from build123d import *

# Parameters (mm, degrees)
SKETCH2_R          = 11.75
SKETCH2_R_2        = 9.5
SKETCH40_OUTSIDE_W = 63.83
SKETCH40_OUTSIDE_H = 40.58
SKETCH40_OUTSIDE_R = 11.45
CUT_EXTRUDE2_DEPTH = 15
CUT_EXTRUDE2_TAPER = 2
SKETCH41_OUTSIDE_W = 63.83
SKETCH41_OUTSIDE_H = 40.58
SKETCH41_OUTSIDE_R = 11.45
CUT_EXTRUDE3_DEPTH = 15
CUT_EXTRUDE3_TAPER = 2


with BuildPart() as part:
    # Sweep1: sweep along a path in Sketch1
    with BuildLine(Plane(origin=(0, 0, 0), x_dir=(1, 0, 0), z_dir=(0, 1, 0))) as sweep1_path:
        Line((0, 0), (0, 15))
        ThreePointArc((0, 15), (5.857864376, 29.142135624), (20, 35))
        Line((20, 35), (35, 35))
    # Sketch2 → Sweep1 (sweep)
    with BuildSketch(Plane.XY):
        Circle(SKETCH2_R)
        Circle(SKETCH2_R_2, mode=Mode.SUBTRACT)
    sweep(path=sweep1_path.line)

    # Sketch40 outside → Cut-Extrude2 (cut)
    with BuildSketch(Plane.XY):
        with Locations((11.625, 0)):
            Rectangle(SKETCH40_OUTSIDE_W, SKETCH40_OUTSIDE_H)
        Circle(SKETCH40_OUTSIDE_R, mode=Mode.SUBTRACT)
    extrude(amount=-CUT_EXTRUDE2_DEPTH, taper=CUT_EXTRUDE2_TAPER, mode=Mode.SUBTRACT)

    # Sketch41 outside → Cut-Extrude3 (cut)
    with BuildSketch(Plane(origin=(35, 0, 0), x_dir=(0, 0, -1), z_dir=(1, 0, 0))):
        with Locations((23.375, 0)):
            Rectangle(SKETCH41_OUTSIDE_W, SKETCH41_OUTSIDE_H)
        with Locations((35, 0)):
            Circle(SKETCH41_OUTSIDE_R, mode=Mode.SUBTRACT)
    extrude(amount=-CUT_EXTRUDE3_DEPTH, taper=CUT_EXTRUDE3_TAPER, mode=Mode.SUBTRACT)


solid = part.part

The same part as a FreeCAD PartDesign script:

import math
import FreeCAD as App
import Part
import Sketcher
Q = App.Units.Quantity


def add_polygon(sketch, points):
    """Adds a closed chain of lines whose ends are joined by coincident constraints."""
    first, n = sketch.GeometryCount, len(points)
    for a, b in zip(points, points[1:] + points[:1]):
        sketch.addGeometry(Part.LineSegment(App.Vector(*a, 0), App.Vector(*b, 0)), False)
    for i in range(n):
        sketch.addConstraint(Sketcher.Constraint("Coincident", first + i, 2, first + (i + 1) % n, 1))

doc = App.newDocument("Part")
params = doc.addObject("Spreadsheet::Sheet", "Params")
for row, (alias, value) in enumerate([
    ("sketch1_diameter", "19 mm"),
    ("sketch1_diameter2", "23.5 mm"),
    ("sketch2_radius", "20 mm"),
    ("sketch2_width", "15 mm"),
    ("sketch3_diameter", "22.9 mm"),
    ("sketch3_width", "63.83 mm"),
    ("sketch3_height", "40.58 mm"),
    ("pocket1_length", "15 mm"),
    ("pocket1_taper", "2 deg"),
    ("sketch4_diameter", "22.9 mm"),
    ("sketch4_width", "40.58 mm"),
    ("sketch4_height", "63.83 mm"),
    ("pocket2_length", "15 mm"),
    ("pocket2_taper", "2 deg"),
], start=1):
    params.set(f"A{row}", alias)
    params.set(f"B{row}", "=" + value)
    params.setAlias(f"B{row}", alias)

body = doc.addObject("PartDesign::Body", "Body")

# Sketch on XY plane
sketch1 = body.newObject("Sketcher::SketchObject", "Sketch")
sketch1.AttachmentSupport = (doc.getObject("XY_Plane"), [""])
sketch1.MapMode = "FlatFace"
sketch1.addGeometry(Part.Circle(App.Vector(0, 0, 0), App.Vector(0, 0, 1), 12), False)
sketch1.addGeometry(Part.Circle(App.Vector(0, 0, 0), App.Vector(0, 0, 1), 10), False)
sketch1.addConstraint(Sketcher.Constraint("Coincident", 0, 3, -1, 1))
sketch1.addConstraint(Sketcher.Constraint("Coincident", 1, 3, -1, 1))
sketch1.addConstraint(Sketcher.Constraint("Diameter", 1, Q("19 mm")))
sketch1.addConstraint(Sketcher.Constraint("Diameter", 0, Q("23.5 mm")))
sketch1.setExpression("Constraints[2]", "Params.sketch1_diameter")
sketch1.setExpression("Constraints[3]", "Params.sketch1_diameter2")

# Sketch on XZ plane
sketch2 = body.newObject("Sketcher::SketchObject", "Sketch001")
sketch2.AttachmentSupport = (doc.getObject("XZ_Plane"), [""])
sketch2.MapMode = "FlatFace"
sketch2.addGeometry(Part.LineSegment(App.Vector(0, 0, 0), App.Vector(0, -15, 0)), False)
sketch2.addGeometry(Part.ArcOfCircle(Part.Circle(App.Vector(20, -15, 0), App.Vector(0, 0, 1), 20), math.radians(180), math.radians(270)), False)
sketch2.addGeometry(Part.LineSegment(App.Vector(20, -35, 0), App.Vector(35, -35, 0)), False)
sketch2.addConstraint(Sketcher.Constraint("Tangent", 0, 2, 1, 1))
sketch2.addConstraint(Sketcher.Constraint("Tangent", 1, 2, 2, 1))
sketch2.addConstraint(Sketcher.Constraint("Vertical", 0))
sketch2.addConstraint(Sketcher.Constraint("Horizontal", 2))
sketch2.addConstraint(Sketcher.Constraint("Coincident", 0, 1, -1, 1))
sketch2.addConstraint(Sketcher.Constraint("Equal", 2, 0))
sketch2.addConstraint(Sketcher.Constraint("Radius", 1, Q("20 mm")))
sketch2.addConstraint(Sketcher.Constraint("DistanceX", 2, 1, 2, 2, Q("15 mm")))
sketch2.setExpression("Constraints[6]", "Params.sketch2_radius")
sketch2.setExpression("Constraints[7]", "Params.sketch2_width")
doc.recompute()

additivepipe = body.newObject("PartDesign::AdditivePipe", "AdditivePipe")
additivepipe.Profile = sketch1
additivepipe.Spine = (sketch2, ["Edge1", "Edge2", "Edge3"])

# Sketch on XY plane
sketch3 = body.newObject("Sketcher::SketchObject", "Sketch002")
sketch3.AttachmentSupport = (doc.getObject("XY_Plane"), [""])
sketch3.MapMode = "FlatFace"
add_polygon(sketch3, [(-20, 20), (-20, -20), (44, -20), (44, 20)])  # lines 0-3
sketch3.addGeometry(Part.Circle(App.Vector(0, 0, 0), App.Vector(0, 0, 1), 11), False)  # 4
sketch3.addConstraint(Sketcher.Constraint("Vertical", 0))
sketch3.addConstraint(Sketcher.Constraint("Horizontal", 1))
sketch3.addConstraint(Sketcher.Constraint("Vertical", 2))
sketch3.addConstraint(Sketcher.Constraint("Horizontal", 3))
sketch3.addConstraint(Sketcher.Constraint("Coincident", 4, 3, -1, 1))
sketch3.addConstraint(Sketcher.Constraint("Diameter", 4, Q("22.9 mm")))
sketch3.addConstraint(Sketcher.Constraint("DistanceX", 1, 1, 1, 2, Q("63.83 mm")))
sketch3.addConstraint(Sketcher.Constraint("DistanceY", 0, 2, 0, 1, Q("40.58 mm")))
sketch3.addConstraint(Sketcher.Constraint("DistanceX", 0, 2, -1, 1, Q("20.29 mm")))
sketch3.addConstraint(Sketcher.Constraint("DistanceY", 0, 2, -1, 1, Q("20.29 mm")))
sketch3.setExpression("Constraints[9]", "Params.sketch3_diameter")
sketch3.setExpression("Constraints[10]", "Params.sketch3_width")
sketch3.setExpression("Constraints[11]", "Params.sketch3_height")
pocket1 = body.newObject("PartDesign::Pocket", "Pocket")
pocket1.Profile = sketch3
pocket1.setExpression("Length", "Params.pocket1_length")
pocket1.setExpression("TaperAngle", "Params.pocket1_taper")

# Sketch on YZ plane
sketch4 = body.newObject("Sketcher::SketchObject", "Sketch003")
sketch4.AttachmentSupport = (doc.getObject("YZ_Plane"), [""])
sketch4.MapMode = "FlatFace"
sketch4.AttachmentOffset = App.Placement(App.Vector(0, 0, 35), App.Rotation())
add_polygon(sketch4, [(20, 9), (-20, 9), (-20, -55), (20, -55)])  # lines 0-3
sketch4.addGeometry(Part.Circle(App.Vector(0, -35, 0), App.Vector(0, 0, 1), 11), False)  # 4
sketch4.addConstraint(Sketcher.Constraint("Horizontal", 0))
sketch4.addConstraint(Sketcher.Constraint("Vertical", 1))
sketch4.addConstraint(Sketcher.Constraint("Horizontal", 2))
sketch4.addConstraint(Sketcher.Constraint("Vertical", 3))
sketch4.addConstraint(Sketcher.Constraint("PointOnObject", 4, 3, -2))
sketch4.addConstraint(Sketcher.Constraint("Diameter", 4, Q("22.9 mm")))
sketch4.addConstraint(Sketcher.Constraint("DistanceY", 4, 3, -1, 1, Q("35 mm")))
sketch4.addConstraint(Sketcher.Constraint("DistanceX", 0, 2, 0, 1, Q("40.58 mm")))
sketch4.addConstraint(Sketcher.Constraint("DistanceY", 1, 2, 1, 1, Q("63.83 mm")))
sketch4.addConstraint(Sketcher.Constraint("DistanceX", 0, 2, -1, 1, Q("20.29 mm")))
sketch4.addConstraint(Sketcher.Constraint("DistanceY", -1, 1, 0, 2, Q("8.54 mm")))
sketch4.setExpression("Constraints[9]", "Params.sketch4_diameter")
sketch4.setExpression("Constraints[11]", "Params.sketch4_width")
sketch4.setExpression("Constraints[12]", "Params.sketch4_height")
pocket2 = body.newObject("PartDesign::Pocket", "Pocket001")
pocket2.Profile = sketch4
pocket2.setExpression("Length", "Params.pocket2_length")
pocket2.setExpression("TaperAngle", "Params.pocket2_taper")

doc.recompute()
